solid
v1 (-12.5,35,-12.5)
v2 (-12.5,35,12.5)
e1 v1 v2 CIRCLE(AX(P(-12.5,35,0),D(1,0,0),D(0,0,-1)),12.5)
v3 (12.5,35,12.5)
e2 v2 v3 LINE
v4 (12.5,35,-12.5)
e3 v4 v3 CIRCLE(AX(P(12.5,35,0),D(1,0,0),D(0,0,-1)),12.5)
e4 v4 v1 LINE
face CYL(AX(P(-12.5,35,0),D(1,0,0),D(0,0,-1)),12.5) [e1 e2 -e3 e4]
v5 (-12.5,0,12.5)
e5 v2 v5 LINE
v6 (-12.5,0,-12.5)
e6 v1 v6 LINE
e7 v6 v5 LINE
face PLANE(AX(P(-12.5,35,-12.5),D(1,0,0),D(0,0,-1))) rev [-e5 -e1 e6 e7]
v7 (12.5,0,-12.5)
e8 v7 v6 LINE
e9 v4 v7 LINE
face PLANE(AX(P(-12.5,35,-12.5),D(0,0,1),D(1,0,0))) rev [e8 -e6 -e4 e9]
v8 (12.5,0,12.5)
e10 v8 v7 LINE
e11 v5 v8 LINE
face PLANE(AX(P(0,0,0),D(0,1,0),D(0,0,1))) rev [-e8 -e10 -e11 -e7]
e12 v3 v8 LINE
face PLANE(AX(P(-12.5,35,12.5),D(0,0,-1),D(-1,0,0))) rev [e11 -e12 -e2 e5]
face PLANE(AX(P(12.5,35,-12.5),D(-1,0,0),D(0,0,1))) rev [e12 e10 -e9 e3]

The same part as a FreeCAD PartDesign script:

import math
import FreeCAD as App
import Part
import Sketcher
Q = App.Units.Quantity

doc = App.newDocument("Part")
body = doc.addObject("PartDesign::Body", "Body")

# Sketch on XZ plane
sketch1 = body.newObject("Sketcher::SketchObject", "Sketch")
sketch1.AttachmentSupport = (doc.getObject("XZ_Plane"), [""])
sketch1.MapMode = "FlatFace"
sketch1.addGeometry([
    Part.LineSegment(App.Vector(-12, -12, 0), App.Vector(-12, 12, 0)),
    Part.LineSegment(App.Vector(-12, 12, 0), App.Vector(12, 12, 0)),
    Part.LineSegment(App.Vector(12, 12, 0), App.Vector(12, -12, 0)),
    Part.LineSegment(App.Vector(12, -12, 0), App.Vector(-12, -12, 0)),
], False)
sketch1.addConstraint([
    Sketcher.Constraint("Coincident", 0, 2, 1, 1),
    Sketcher.Constraint("Coincident", 1, 2, 2, 1),
    Sketcher.Constraint("Coincident", 2, 2, 3, 1),
    Sketcher.Constraint("Coincident", 3, 2, 0, 1),
    Sketcher.Constraint("Vertical", 0),
    Sketcher.Constraint("Horizontal", 1),
    Sketcher.Constraint("Vertical", 2),
    Sketcher.Constraint("Horizontal", 3),
    Sketcher.Constraint("Symmetric", 0, 2, 2, 2, -1, 1),
    Sketcher.Constraint("Equal", 3, 0),
    Sketcher.Constraint("DistanceX", 1, 1, 1, 2, Q("25 mm")),
])
pad1 = body.newObject("PartDesign::Pad", "Pad")
pad1.Profile = sketch1
pad1.Length = 35
pad1.Reversed = True

# Sketch on YZ plane
sketch2 = body.newObject("Sketcher::SketchObject", "Sketch001")
sketch2.AttachmentSupport = (doc.getObject("YZ_Plane"), [""])
sketch2.MapMode = "FlatFace"
sketch2.AttachmentOffset = App.Placement(App.Vector(0, 0, 12.5), App.Rotation())
sketch2.addGeometry([
    Part.LineSegment(App.Vector(35, 12, 0), App.Vector(35, -12, 0)),
    Part.ArcOfCircle(Part.Circle(App.Vector(35, 0, 0), App.Vector(0, 0, 1), 12), math.radians(-90), math.radians(90)),
], False)
sketch2.addConstraint([
    Sketcher.Constraint("Coincident", 0, 1, 1, 2),
    Sketcher.Constraint("Coincident", 1, 1, 0, 2),
    Sketcher.Constraint("Vertical", 0),
    Sketcher.Constraint("PointOnObject", 1, 3, -1),
    Sketcher.Constraint("Vertical", 1, 3, 0, 1),
    Sketcher.Constraint("Radius", 1, Q("12.5 mm")),
    Sketcher.Constraint("DistanceX", -1, 1, 1, 3, Q("35 mm")),
])
pad2 = body.newObject("PartDesign::Pad", "Pad001")
pad2.Profile = sketch2
pad2.Length = 25
pad2.Reversed = True

doc.recompute()
